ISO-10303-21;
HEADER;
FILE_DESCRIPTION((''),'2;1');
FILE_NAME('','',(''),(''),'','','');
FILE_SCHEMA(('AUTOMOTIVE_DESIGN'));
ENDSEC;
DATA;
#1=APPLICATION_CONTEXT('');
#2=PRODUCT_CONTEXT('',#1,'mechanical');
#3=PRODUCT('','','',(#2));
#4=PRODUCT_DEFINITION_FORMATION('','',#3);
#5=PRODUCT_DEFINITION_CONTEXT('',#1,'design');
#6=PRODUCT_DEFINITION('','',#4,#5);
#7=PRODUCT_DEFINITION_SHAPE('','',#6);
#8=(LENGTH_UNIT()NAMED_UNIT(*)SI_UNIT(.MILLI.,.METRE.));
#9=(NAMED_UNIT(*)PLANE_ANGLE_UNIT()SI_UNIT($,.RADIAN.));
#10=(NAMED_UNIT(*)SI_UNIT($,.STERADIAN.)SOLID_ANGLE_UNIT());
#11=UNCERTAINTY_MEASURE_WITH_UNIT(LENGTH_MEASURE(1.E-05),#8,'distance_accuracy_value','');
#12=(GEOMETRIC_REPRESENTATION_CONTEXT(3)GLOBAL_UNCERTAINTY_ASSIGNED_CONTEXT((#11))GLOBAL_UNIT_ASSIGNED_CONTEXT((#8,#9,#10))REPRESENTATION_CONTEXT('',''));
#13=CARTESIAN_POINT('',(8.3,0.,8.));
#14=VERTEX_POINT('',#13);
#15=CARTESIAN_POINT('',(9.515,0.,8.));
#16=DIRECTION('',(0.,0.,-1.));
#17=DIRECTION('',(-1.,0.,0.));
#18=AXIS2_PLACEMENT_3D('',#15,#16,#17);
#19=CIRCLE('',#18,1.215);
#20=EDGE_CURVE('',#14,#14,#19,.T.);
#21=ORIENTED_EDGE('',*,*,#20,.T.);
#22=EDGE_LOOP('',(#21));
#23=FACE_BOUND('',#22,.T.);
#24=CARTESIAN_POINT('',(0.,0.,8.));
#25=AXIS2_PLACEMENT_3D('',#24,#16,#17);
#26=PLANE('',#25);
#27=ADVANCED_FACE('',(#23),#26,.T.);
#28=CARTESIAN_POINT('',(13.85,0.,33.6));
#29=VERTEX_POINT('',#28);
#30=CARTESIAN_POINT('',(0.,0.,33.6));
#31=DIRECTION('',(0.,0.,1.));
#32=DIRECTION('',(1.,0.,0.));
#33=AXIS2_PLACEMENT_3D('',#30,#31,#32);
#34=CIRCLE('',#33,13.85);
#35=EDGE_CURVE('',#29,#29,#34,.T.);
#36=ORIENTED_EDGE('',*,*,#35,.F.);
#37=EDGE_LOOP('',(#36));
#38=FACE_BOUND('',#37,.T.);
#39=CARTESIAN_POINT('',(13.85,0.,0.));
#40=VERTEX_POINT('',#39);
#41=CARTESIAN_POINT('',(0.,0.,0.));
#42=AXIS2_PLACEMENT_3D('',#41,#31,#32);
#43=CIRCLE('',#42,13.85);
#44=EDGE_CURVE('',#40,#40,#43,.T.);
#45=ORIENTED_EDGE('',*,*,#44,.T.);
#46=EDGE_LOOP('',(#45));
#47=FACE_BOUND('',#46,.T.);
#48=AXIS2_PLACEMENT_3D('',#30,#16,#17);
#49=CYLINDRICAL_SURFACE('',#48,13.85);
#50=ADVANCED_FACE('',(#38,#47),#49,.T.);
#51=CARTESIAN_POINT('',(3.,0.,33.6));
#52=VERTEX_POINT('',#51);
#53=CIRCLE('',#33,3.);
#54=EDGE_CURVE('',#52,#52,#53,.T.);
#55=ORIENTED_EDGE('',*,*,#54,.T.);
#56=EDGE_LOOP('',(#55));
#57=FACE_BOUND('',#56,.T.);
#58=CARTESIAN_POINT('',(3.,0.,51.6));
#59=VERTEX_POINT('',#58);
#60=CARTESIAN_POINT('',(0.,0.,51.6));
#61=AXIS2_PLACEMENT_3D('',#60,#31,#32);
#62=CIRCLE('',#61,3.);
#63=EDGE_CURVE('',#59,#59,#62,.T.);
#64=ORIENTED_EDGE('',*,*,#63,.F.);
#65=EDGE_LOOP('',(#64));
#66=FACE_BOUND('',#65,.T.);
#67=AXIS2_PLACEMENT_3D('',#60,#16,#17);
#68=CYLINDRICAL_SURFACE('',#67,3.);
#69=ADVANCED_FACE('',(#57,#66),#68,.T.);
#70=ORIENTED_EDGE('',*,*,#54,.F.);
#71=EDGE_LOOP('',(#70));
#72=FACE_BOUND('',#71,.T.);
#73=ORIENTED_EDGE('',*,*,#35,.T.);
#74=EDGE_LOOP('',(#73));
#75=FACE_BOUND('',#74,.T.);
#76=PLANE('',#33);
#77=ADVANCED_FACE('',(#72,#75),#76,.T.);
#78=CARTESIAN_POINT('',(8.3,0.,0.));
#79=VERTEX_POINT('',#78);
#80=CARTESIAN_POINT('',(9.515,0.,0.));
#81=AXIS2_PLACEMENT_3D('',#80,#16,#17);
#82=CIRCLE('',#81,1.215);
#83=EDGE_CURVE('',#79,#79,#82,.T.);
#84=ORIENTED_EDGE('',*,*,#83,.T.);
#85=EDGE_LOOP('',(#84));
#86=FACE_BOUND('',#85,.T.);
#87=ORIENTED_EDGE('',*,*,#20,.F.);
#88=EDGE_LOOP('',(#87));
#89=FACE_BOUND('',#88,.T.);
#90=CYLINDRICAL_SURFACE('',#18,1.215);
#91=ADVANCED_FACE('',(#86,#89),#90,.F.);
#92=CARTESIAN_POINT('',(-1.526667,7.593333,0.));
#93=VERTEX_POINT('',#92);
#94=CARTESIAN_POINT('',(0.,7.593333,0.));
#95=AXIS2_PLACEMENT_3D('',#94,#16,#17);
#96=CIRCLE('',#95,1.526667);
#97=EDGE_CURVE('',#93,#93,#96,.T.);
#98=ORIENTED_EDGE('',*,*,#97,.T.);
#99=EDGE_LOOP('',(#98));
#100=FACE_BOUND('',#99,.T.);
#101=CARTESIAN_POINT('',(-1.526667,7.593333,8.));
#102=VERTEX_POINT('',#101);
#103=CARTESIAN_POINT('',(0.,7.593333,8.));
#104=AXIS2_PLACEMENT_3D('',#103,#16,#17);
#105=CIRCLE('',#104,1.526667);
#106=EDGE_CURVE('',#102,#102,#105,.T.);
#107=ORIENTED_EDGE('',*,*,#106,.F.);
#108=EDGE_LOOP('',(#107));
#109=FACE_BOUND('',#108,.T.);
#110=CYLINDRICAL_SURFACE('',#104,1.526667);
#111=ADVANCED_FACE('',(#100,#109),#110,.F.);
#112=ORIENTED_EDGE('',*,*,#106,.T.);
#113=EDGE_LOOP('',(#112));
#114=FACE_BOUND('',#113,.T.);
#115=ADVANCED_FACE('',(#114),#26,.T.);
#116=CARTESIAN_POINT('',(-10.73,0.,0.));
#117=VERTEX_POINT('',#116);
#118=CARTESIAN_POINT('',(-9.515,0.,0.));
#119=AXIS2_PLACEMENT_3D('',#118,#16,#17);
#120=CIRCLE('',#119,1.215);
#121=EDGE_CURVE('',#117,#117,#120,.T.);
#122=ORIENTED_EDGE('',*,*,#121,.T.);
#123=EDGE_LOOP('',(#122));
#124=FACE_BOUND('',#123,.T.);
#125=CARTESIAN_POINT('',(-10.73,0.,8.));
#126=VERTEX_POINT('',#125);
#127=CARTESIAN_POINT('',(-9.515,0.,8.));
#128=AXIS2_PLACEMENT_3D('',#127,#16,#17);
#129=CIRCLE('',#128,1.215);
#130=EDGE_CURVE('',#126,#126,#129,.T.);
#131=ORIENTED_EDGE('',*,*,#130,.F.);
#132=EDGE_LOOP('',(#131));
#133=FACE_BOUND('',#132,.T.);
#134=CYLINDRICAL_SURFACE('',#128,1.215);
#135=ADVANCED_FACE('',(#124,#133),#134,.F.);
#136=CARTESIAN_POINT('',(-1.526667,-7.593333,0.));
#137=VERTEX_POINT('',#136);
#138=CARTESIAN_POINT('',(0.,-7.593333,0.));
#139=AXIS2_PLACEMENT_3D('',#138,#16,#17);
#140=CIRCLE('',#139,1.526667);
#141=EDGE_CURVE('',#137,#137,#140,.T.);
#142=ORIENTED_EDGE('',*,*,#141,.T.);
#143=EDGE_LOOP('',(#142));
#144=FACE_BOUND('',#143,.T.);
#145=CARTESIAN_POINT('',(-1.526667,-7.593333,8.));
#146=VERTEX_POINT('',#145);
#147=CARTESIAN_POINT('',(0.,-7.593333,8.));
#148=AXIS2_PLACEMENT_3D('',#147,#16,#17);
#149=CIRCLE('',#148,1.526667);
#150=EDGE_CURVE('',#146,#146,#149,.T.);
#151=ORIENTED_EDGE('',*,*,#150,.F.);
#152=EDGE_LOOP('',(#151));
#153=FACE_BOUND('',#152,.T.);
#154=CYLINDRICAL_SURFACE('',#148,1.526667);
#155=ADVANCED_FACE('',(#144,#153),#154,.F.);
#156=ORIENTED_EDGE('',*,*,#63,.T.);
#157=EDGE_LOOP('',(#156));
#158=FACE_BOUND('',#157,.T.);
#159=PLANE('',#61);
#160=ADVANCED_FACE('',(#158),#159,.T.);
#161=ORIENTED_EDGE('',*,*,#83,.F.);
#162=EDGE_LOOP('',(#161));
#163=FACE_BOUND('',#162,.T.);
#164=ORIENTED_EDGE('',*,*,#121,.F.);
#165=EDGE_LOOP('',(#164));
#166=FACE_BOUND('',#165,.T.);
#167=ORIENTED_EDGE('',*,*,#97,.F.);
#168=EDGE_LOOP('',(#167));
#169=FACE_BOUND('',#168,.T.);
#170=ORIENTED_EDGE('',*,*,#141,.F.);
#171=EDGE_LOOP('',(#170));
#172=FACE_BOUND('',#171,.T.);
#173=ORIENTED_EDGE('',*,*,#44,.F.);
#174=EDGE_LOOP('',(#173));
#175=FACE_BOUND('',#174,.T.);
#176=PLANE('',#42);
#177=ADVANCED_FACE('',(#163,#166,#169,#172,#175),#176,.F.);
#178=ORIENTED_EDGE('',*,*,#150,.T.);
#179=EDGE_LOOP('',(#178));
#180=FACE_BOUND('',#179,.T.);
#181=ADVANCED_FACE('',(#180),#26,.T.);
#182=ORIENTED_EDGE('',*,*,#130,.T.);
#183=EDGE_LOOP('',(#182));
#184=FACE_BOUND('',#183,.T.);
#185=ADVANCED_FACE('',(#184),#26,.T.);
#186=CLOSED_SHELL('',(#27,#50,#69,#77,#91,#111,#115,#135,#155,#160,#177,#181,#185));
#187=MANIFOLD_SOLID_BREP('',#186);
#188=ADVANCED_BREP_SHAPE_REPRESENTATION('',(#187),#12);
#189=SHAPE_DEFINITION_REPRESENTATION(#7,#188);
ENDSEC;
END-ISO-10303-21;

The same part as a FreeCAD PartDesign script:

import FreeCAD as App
import Part
import Sketcher

V = App.Vector
Q = App.Units.Quantity

doc = App.newDocument("Part")
body = doc.addObject("PartDesign::Body", "Body")

# Sketch on XY plane
sketch1 = body.newObject("Sketcher::SketchObject", "Sketch")
sketch1.AttachmentSupport = (doc.getObject("XY_Plane"), [""])
sketch1.MapMode = "FlatFace"
sketch1.addGeometry(Part.Circle(V(0, 0, 0), V(0, 0, 1), 14), False)
sketch1.addConstraint([
    Sketcher.Constraint("Coincident", 0, 3, -1, 1),
    Sketcher.Constraint("Diameter", 0, Q("27.7 mm")),
])
pad1 = body.newObject("PartDesign::Pad", "Pad")
pad1.Profile = sketch1
pad1.Length = 33.6

# Sketch on XY plane
sketch2 = body.newObject("Sketcher::SketchObject", "Sketch001")
sketch2.AttachmentSupport = (doc.getObject("XY_Plane"), [""])
sketch2.MapMode = "FlatFace"
sketch2.AttachmentOffset = App.Placement(V(0, 0, 33.6), App.Rotation())
sketch2.addGeometry(Part.Circle(V(0, 0, 0), V(0, 0, 1), 3), False)
sketch2.addConstraint([
    Sketcher.Constraint("Coincident", 0, 3, -1, 1),
    Sketcher.Constraint("Diameter", 0, Q("6 mm")),
])
pad2 = body.newObject("PartDesign::Pad", "Pad001")
pad2.Profile = sketch2
pad2.Length = 18

# Sketch on XY plane
sketch3 = body.newObject("Sketcher::SketchObject", "Sketch002")
sketch3.AttachmentSupport = (doc.getObject("XY_Plane"), [""])
sketch3.MapMode = "FlatFace"
sketch3.addGeometry([
    Part.Circle(V(9.5, 0, 0), V(0, 0, 1), 1.2),
    Part.Circle(V(-9.5, 0, 0), V(0, 0, 1), 1.2),
    Part.Circle(V(0, 7.6, 0), V(0, 0, 1), 1.5),
    Part.Circle(V(0, -7.6, 0), V(0, 0, 1), 1.5),
], False)
sketch3.addConstraint([
    Sketcher.Constraint("Equal", 0, 1),
    Sketcher.Constraint("Equal", 2, 3),
    Sketcher.Constraint("Symmetric", 0, 3, 1, 3, -1, 1),
    Sketcher.Constraint("Symmetric", 2, 3, 3, 3, -1, 1),
    Sketcher.Constraint("PointOnObject", 0, 3, -1),
    Sketcher.Constraint("PointOnObject", 2, 3, -2),
    Sketcher.Constraint("Diameter", 0, Q("2.43 mm")),
    Sketcher.Constraint("DistanceX", 1, 3, 0, 3, Q("19.03 mm")),
    Sketcher.Constraint("Diameter", 2, Q("3.053333 mm")),
    Sketcher.Constraint("DistanceY", -1, 1, 2, 3, Q("7.593333 mm")),
])
pocket1 = body.newObject("PartDesign::Pocket", "Pocket")
pocket1.Profile = sketch3
pocket1.Length = 8
pocket1.Reversed = True

doc.recompute()
